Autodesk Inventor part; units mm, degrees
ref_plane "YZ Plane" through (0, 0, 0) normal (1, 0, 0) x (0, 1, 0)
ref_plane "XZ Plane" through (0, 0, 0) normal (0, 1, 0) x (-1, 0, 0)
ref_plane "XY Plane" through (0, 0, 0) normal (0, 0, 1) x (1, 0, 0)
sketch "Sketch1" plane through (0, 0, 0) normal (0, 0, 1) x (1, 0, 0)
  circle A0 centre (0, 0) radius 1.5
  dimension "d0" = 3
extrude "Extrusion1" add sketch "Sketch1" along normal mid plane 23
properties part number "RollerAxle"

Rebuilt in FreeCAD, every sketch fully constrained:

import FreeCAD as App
import Part
import Sketcher

V = App.Vector

doc = App.newDocument("Part")
body = doc.addObject("PartDesign::Body", "Body")

sketch1 = doc.addObject("Sketcher::SketchObject", "Sketch")
body.addObject(sketch1)
sketch1.AttachmentSupport = (doc.XY_Plane, [""])
sketch1.MapMode = "FlatFace"
sketch1.addGeometry(Part.Circle(V(0, 0, 0), V(0, 0, 1), 1.5), False)
sketch1.addConstraint([
    Sketcher.Constraint("Coincident", 0, 3, -1, 1),
    Sketcher.Constraint("Diameter", 0, 3.0),
])
pad1 = doc.addObject("PartDesign::Pad", "Pad")
body.addObject(pad1)
pad1.Profile = sketch1
pad1.Length = 23
pad1.Midplane = True

doc.recompute()
